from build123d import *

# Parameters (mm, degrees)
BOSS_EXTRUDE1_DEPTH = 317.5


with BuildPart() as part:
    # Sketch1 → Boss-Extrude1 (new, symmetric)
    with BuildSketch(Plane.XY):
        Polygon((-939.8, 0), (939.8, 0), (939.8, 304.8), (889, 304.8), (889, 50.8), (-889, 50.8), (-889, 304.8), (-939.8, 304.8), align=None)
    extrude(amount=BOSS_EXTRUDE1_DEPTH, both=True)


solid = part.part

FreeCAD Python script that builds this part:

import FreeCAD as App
import Part
import Sketcher
Q = App.Units.Quantity

doc = App.newDocument("Part")
body = doc.addObject("PartDesign::Body", "Body")

# Sketch on XY plane
sketch1 = body.newObject("Sketcher::SketchObject", "Sketch")
sketch1.AttachmentSupport = (doc.getObject("XY_Plane"), [""])
sketch1.MapMode = "FlatFace"
sketch1.addGeometry(Part.LineSegment(App.Vector(-939.8, 0, 0), App.Vector(939.8, 0, 0)), False)
sketch1.addGeometry(Part.LineSegment(App.Vector(939.8, 0, 0), App.Vector(939.8, 304.8, 0)), False)
sketch1.addGeometry(Part.LineSegment(App.Vector(939.8, 304.8, 0), App.Vector(889, 304.8, 0)), False)
sketch1.addGeometry(Part.LineSegment(App.Vector(889, 304.8, 0), App.Vector(889, 50.8, 0)), False)
sketch1.addGeometry(Part.LineSegment(App.Vector(889, 50.8, 0), App.Vector(-889, 50.8, 0)), False)
sketch1.addGeometry(Part.LineSegment(App.Vector(-889, 50.8, 0), App.Vector(-889, 304.8, 0)), False)
sketch1.addGeometry(Part.LineSegment(App.Vector(-889, 304.8, 0), App.Vector(-939.8, 304.8, 0)), False)
sketch1.addGeometry(Part.LineSegment(App.Vector(-939.8, 304.8, 0), App.Vector(-939.8, 0, 0)), False)
sketch1.addConstraint(Sketcher.Constraint("Coincident", 0, 2, 1, 1))
sketch1.addConstraint(Sketcher.Constraint("Coincident", 1, 2, 2, 1))
sketch1.addConstraint(Sketcher.Constraint("Coincident", 2, 2, 3, 1))
sketch1.addConstraint(Sketcher.Constraint("Coincident", 3, 2, 4, 1))
sketch1.addConstraint(Sketcher.Constraint("Coincident", 4, 2, 5, 1))
sketch1.addConstraint(Sketcher.Constraint("Coincident", 5, 2, 6, 1))
sketch1.addConstraint(Sketcher.Constraint("Coincident", 6, 2, 7, 1))
sketch1.addConstraint(Sketcher.Constraint("Coincident", 7, 2, 0, 1))
sketch1.addConstraint(Sketcher.Constraint("Horizontal", 0))
sketch1.addConstraint(Sketcher.Constraint("Vertical", 1))
sketch1.addConstraint(Sketcher.Constraint("Horizontal", 2))
sketch1.addConstraint(Sketcher.Constraint("Vertical", 3))
sketch1.addConstraint(Sketcher.Constraint("Horizontal", 4))
sketch1.addConstraint(Sketcher.Constraint("Vertical", 5))
sketch1.addConstraint(Sketcher.Constraint("Horizontal", 6))
sketch1.addConstraint(Sketcher.Constraint("Vertical", 7))
sketch1.addConstraint(Sketcher.Constraint("Symmetric", 0, 2, 7, 2, -1, 1))
sketch1.addConstraint(Sketcher.Constraint("Symmetric", 2, 2, 5, 2, -2))
sketch1.addConstraint(Sketcher.Constraint("DistanceX", 0, 1, 0, 2, Q("74 in")))
sketch1.addConstraint(Sketcher.Constraint("DistanceX", 2, 2, 2, 1, Q("2 in")))
sketch1.addConstraint(Sketcher.Constraint("DistanceY", 1, 1, 1, 2, Q("12 in")))
sketch1.addConstraint(Sketcher.Constraint("DistanceY", 3, 2, 3, 1, Q("10 in")))
pad1 = body.newObject("PartDesign::Pad", "Pad")
pad1.Profile = sketch1
pad1.Length = Q("25 in")
pad1.Midplane = True

doc.recompute()
